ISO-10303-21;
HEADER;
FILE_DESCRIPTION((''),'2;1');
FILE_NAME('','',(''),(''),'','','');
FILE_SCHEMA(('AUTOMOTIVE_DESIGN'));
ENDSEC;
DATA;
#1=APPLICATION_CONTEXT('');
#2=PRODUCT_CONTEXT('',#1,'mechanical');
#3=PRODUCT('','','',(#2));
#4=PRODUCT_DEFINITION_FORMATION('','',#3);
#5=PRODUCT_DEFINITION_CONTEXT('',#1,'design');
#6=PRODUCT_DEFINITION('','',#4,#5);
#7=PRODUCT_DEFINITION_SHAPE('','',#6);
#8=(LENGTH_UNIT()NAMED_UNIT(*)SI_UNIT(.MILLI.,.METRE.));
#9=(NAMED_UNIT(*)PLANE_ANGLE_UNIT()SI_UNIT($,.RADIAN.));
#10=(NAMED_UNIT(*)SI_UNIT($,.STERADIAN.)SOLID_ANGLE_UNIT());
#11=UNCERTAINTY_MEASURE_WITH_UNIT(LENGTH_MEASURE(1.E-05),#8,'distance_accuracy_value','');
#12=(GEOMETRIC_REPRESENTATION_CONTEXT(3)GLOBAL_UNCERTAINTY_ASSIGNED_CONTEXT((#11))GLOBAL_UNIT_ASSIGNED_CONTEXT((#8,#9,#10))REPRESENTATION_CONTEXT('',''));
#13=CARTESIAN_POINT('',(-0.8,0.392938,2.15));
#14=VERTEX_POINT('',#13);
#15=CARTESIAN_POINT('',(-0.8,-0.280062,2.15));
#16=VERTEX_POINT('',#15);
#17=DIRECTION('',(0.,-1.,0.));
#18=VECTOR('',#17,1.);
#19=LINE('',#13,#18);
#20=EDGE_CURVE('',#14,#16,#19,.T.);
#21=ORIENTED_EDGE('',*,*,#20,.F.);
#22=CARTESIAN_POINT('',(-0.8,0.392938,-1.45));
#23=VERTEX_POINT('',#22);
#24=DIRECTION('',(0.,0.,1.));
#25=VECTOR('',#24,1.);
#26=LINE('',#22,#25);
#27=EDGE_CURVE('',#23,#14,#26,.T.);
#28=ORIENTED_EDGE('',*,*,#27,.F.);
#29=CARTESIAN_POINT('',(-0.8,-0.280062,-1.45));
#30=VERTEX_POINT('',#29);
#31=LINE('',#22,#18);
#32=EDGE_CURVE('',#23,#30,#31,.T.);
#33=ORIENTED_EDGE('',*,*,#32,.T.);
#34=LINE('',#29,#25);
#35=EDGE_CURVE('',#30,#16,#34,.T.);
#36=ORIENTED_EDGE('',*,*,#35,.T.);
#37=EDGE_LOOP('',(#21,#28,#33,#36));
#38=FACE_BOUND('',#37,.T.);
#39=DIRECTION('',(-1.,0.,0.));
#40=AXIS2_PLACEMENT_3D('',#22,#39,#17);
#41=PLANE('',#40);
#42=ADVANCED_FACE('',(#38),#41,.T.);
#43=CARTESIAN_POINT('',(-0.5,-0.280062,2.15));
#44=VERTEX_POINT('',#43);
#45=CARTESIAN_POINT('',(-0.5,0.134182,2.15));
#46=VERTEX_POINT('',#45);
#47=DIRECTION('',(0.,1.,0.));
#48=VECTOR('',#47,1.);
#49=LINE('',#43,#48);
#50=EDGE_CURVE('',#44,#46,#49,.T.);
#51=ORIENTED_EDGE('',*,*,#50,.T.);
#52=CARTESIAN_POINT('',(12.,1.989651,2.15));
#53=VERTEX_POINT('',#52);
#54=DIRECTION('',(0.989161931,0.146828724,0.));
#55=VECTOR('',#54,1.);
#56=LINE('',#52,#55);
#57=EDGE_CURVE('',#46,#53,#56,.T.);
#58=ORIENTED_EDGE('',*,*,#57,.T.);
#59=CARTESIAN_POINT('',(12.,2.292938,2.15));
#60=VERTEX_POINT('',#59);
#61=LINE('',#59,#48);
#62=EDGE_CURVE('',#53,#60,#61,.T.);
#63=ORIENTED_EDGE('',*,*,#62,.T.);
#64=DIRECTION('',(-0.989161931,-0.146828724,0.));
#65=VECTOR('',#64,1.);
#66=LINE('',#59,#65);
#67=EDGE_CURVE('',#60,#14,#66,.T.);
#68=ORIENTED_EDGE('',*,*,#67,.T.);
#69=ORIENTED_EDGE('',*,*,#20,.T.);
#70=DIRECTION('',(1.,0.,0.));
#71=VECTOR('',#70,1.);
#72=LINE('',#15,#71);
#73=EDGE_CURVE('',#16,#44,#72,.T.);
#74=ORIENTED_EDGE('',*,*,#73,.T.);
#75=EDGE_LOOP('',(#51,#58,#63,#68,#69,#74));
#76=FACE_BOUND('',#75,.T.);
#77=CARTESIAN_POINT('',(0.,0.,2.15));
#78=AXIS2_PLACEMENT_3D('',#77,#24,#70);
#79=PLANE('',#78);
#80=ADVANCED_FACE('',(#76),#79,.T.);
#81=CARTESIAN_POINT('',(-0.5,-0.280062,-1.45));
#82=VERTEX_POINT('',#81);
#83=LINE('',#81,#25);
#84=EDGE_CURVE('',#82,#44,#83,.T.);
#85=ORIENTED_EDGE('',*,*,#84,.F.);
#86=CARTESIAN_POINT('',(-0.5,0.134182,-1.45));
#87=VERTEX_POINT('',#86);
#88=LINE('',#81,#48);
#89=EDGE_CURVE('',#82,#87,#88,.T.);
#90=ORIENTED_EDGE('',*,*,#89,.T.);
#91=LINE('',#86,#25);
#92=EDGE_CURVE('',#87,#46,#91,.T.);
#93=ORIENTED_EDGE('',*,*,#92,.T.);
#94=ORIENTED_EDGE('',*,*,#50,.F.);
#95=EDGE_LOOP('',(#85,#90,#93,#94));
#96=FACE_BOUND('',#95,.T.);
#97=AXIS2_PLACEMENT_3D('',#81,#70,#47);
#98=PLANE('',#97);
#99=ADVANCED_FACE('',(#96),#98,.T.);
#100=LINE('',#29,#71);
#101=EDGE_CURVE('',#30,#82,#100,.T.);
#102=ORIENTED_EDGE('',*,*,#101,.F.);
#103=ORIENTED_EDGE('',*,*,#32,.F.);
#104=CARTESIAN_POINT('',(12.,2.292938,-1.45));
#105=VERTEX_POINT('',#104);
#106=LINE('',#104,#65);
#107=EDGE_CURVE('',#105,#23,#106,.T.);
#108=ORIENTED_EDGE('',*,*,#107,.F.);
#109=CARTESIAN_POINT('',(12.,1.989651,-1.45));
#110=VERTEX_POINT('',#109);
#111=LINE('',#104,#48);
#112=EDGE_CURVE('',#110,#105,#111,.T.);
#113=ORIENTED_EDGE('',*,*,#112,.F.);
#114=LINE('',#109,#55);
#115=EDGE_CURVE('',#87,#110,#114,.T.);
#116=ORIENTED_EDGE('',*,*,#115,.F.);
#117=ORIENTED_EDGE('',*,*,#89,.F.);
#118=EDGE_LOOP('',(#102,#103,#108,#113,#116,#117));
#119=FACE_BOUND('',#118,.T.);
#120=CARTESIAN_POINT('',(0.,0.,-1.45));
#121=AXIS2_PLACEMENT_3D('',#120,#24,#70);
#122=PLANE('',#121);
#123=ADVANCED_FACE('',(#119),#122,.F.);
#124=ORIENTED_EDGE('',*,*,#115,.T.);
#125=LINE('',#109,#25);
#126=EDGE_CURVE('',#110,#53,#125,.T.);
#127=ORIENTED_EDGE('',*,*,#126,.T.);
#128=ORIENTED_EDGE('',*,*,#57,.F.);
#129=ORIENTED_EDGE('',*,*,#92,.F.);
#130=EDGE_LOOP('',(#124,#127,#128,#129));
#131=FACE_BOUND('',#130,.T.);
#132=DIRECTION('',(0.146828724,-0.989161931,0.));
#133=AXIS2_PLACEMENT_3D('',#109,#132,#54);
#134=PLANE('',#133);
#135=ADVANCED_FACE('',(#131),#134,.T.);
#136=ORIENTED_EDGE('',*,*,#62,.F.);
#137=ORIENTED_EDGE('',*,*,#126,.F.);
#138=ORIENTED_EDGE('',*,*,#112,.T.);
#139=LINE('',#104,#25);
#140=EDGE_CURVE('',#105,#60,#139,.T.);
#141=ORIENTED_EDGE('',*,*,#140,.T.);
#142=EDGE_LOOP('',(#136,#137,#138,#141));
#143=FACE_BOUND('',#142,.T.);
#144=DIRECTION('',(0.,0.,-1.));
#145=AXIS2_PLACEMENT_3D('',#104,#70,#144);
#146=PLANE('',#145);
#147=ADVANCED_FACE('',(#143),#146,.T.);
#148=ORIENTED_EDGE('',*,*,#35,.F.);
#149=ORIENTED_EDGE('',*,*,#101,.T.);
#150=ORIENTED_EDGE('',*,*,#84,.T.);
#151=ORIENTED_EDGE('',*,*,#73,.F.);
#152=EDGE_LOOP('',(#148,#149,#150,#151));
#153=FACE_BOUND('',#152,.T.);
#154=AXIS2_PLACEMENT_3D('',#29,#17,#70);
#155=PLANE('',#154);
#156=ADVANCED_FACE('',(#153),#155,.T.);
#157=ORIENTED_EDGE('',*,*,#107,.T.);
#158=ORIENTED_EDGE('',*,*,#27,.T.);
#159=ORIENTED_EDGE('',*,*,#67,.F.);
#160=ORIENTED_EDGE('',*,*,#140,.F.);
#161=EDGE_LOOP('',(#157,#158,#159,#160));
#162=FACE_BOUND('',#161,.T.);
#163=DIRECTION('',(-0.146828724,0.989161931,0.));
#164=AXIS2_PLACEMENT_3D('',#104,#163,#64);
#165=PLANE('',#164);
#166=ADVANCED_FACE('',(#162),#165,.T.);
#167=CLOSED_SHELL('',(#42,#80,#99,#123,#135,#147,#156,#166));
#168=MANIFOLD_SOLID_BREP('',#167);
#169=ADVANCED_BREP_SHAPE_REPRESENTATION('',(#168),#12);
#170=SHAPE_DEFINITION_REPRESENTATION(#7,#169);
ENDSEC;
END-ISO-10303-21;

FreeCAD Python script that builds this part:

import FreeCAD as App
import Part
import Sketcher
from FreeCAD import Vector
Q = App.Units.Quantity


def add_polygon(sketch, points):
    """Adds a closed chain of lines whose ends are joined by coincident constraints."""
    first, n = sketch.GeometryCount, len(points)
    for a, b in zip(points, points[1:] + points[:1]):
        sketch.addGeometry(Part.LineSegment(App.Vector(*a, 0), App.Vector(*b, 0)), False)
    for i in range(n):
        sketch.addConstraint(Sketcher.Constraint("Coincident", first + i, 2, first + (i + 1) % n, 1))

doc = App.newDocument("Part")
body = doc.addObject("PartDesign::Body", "Body")

sketch1 = body.newObject("Sketcher::SketchObject", "Sketch")
sketch1.AttachmentSupport = (doc.getObject("XY_Plane"), [""])
sketch1.MapMode = "FlatFace"
sketch1.AttachmentOffset = App.Placement(Vector(0, 0, 2.15), App.Rotation())
add_polygon(sketch1, [(-0.8, 0.39), (-0.8, -0.28), (-0.5, -0.28), (-0.5, 0.13), (12, 1.99), (12, 2.29)])
sketch1.addConstraint(Sketcher.Constraint("Vertical", 0))
sketch1.addConstraint(Sketcher.Constraint("Horizontal", 1))
sketch1.addConstraint(Sketcher.Constraint("Vertical", 2))
sketch1.addConstraint(Sketcher.Constraint("Vertical", 4))
sketch1.addConstraint(Sketcher.Constraint("Parallel", 3, 5))
sketch1.addConstraint(Sketcher.Constraint("DistanceX", 1, 1, 1, 2, Q("0.3 mm")))
sketch1.addConstraint(Sketcher.Constraint("DistanceX", -1, 1, 3, 2, Q("12 mm")))
sketch1.addConstraint(Sketcher.Constraint("DistanceX", 0, 2, -1, 1, Q("0.8 mm")))
sketch1.addConstraint(Sketcher.Constraint("DistanceY", 5, 2, 4, 2, Q("1.9 mm")))
sketch1.addConstraint(Sketcher.Constraint("DistanceY", 0, 2, 0, 1, Q("0.673 mm")))
sketch1.addConstraint(Sketcher.Constraint("DistanceY", 2, 1, 2, 2, Q("0.414244 mm")))
sketch1.addConstraint(Sketcher.Constraint("DistanceY", 0, 2, -1, 1, Q("0.280062 mm")))
pad1 = body.newObject("PartDesign::Pad", "Pad")
pad1.Profile = sketch1
pad1.Length = 3.6
pad1.Reversed = True

doc.recompute()
